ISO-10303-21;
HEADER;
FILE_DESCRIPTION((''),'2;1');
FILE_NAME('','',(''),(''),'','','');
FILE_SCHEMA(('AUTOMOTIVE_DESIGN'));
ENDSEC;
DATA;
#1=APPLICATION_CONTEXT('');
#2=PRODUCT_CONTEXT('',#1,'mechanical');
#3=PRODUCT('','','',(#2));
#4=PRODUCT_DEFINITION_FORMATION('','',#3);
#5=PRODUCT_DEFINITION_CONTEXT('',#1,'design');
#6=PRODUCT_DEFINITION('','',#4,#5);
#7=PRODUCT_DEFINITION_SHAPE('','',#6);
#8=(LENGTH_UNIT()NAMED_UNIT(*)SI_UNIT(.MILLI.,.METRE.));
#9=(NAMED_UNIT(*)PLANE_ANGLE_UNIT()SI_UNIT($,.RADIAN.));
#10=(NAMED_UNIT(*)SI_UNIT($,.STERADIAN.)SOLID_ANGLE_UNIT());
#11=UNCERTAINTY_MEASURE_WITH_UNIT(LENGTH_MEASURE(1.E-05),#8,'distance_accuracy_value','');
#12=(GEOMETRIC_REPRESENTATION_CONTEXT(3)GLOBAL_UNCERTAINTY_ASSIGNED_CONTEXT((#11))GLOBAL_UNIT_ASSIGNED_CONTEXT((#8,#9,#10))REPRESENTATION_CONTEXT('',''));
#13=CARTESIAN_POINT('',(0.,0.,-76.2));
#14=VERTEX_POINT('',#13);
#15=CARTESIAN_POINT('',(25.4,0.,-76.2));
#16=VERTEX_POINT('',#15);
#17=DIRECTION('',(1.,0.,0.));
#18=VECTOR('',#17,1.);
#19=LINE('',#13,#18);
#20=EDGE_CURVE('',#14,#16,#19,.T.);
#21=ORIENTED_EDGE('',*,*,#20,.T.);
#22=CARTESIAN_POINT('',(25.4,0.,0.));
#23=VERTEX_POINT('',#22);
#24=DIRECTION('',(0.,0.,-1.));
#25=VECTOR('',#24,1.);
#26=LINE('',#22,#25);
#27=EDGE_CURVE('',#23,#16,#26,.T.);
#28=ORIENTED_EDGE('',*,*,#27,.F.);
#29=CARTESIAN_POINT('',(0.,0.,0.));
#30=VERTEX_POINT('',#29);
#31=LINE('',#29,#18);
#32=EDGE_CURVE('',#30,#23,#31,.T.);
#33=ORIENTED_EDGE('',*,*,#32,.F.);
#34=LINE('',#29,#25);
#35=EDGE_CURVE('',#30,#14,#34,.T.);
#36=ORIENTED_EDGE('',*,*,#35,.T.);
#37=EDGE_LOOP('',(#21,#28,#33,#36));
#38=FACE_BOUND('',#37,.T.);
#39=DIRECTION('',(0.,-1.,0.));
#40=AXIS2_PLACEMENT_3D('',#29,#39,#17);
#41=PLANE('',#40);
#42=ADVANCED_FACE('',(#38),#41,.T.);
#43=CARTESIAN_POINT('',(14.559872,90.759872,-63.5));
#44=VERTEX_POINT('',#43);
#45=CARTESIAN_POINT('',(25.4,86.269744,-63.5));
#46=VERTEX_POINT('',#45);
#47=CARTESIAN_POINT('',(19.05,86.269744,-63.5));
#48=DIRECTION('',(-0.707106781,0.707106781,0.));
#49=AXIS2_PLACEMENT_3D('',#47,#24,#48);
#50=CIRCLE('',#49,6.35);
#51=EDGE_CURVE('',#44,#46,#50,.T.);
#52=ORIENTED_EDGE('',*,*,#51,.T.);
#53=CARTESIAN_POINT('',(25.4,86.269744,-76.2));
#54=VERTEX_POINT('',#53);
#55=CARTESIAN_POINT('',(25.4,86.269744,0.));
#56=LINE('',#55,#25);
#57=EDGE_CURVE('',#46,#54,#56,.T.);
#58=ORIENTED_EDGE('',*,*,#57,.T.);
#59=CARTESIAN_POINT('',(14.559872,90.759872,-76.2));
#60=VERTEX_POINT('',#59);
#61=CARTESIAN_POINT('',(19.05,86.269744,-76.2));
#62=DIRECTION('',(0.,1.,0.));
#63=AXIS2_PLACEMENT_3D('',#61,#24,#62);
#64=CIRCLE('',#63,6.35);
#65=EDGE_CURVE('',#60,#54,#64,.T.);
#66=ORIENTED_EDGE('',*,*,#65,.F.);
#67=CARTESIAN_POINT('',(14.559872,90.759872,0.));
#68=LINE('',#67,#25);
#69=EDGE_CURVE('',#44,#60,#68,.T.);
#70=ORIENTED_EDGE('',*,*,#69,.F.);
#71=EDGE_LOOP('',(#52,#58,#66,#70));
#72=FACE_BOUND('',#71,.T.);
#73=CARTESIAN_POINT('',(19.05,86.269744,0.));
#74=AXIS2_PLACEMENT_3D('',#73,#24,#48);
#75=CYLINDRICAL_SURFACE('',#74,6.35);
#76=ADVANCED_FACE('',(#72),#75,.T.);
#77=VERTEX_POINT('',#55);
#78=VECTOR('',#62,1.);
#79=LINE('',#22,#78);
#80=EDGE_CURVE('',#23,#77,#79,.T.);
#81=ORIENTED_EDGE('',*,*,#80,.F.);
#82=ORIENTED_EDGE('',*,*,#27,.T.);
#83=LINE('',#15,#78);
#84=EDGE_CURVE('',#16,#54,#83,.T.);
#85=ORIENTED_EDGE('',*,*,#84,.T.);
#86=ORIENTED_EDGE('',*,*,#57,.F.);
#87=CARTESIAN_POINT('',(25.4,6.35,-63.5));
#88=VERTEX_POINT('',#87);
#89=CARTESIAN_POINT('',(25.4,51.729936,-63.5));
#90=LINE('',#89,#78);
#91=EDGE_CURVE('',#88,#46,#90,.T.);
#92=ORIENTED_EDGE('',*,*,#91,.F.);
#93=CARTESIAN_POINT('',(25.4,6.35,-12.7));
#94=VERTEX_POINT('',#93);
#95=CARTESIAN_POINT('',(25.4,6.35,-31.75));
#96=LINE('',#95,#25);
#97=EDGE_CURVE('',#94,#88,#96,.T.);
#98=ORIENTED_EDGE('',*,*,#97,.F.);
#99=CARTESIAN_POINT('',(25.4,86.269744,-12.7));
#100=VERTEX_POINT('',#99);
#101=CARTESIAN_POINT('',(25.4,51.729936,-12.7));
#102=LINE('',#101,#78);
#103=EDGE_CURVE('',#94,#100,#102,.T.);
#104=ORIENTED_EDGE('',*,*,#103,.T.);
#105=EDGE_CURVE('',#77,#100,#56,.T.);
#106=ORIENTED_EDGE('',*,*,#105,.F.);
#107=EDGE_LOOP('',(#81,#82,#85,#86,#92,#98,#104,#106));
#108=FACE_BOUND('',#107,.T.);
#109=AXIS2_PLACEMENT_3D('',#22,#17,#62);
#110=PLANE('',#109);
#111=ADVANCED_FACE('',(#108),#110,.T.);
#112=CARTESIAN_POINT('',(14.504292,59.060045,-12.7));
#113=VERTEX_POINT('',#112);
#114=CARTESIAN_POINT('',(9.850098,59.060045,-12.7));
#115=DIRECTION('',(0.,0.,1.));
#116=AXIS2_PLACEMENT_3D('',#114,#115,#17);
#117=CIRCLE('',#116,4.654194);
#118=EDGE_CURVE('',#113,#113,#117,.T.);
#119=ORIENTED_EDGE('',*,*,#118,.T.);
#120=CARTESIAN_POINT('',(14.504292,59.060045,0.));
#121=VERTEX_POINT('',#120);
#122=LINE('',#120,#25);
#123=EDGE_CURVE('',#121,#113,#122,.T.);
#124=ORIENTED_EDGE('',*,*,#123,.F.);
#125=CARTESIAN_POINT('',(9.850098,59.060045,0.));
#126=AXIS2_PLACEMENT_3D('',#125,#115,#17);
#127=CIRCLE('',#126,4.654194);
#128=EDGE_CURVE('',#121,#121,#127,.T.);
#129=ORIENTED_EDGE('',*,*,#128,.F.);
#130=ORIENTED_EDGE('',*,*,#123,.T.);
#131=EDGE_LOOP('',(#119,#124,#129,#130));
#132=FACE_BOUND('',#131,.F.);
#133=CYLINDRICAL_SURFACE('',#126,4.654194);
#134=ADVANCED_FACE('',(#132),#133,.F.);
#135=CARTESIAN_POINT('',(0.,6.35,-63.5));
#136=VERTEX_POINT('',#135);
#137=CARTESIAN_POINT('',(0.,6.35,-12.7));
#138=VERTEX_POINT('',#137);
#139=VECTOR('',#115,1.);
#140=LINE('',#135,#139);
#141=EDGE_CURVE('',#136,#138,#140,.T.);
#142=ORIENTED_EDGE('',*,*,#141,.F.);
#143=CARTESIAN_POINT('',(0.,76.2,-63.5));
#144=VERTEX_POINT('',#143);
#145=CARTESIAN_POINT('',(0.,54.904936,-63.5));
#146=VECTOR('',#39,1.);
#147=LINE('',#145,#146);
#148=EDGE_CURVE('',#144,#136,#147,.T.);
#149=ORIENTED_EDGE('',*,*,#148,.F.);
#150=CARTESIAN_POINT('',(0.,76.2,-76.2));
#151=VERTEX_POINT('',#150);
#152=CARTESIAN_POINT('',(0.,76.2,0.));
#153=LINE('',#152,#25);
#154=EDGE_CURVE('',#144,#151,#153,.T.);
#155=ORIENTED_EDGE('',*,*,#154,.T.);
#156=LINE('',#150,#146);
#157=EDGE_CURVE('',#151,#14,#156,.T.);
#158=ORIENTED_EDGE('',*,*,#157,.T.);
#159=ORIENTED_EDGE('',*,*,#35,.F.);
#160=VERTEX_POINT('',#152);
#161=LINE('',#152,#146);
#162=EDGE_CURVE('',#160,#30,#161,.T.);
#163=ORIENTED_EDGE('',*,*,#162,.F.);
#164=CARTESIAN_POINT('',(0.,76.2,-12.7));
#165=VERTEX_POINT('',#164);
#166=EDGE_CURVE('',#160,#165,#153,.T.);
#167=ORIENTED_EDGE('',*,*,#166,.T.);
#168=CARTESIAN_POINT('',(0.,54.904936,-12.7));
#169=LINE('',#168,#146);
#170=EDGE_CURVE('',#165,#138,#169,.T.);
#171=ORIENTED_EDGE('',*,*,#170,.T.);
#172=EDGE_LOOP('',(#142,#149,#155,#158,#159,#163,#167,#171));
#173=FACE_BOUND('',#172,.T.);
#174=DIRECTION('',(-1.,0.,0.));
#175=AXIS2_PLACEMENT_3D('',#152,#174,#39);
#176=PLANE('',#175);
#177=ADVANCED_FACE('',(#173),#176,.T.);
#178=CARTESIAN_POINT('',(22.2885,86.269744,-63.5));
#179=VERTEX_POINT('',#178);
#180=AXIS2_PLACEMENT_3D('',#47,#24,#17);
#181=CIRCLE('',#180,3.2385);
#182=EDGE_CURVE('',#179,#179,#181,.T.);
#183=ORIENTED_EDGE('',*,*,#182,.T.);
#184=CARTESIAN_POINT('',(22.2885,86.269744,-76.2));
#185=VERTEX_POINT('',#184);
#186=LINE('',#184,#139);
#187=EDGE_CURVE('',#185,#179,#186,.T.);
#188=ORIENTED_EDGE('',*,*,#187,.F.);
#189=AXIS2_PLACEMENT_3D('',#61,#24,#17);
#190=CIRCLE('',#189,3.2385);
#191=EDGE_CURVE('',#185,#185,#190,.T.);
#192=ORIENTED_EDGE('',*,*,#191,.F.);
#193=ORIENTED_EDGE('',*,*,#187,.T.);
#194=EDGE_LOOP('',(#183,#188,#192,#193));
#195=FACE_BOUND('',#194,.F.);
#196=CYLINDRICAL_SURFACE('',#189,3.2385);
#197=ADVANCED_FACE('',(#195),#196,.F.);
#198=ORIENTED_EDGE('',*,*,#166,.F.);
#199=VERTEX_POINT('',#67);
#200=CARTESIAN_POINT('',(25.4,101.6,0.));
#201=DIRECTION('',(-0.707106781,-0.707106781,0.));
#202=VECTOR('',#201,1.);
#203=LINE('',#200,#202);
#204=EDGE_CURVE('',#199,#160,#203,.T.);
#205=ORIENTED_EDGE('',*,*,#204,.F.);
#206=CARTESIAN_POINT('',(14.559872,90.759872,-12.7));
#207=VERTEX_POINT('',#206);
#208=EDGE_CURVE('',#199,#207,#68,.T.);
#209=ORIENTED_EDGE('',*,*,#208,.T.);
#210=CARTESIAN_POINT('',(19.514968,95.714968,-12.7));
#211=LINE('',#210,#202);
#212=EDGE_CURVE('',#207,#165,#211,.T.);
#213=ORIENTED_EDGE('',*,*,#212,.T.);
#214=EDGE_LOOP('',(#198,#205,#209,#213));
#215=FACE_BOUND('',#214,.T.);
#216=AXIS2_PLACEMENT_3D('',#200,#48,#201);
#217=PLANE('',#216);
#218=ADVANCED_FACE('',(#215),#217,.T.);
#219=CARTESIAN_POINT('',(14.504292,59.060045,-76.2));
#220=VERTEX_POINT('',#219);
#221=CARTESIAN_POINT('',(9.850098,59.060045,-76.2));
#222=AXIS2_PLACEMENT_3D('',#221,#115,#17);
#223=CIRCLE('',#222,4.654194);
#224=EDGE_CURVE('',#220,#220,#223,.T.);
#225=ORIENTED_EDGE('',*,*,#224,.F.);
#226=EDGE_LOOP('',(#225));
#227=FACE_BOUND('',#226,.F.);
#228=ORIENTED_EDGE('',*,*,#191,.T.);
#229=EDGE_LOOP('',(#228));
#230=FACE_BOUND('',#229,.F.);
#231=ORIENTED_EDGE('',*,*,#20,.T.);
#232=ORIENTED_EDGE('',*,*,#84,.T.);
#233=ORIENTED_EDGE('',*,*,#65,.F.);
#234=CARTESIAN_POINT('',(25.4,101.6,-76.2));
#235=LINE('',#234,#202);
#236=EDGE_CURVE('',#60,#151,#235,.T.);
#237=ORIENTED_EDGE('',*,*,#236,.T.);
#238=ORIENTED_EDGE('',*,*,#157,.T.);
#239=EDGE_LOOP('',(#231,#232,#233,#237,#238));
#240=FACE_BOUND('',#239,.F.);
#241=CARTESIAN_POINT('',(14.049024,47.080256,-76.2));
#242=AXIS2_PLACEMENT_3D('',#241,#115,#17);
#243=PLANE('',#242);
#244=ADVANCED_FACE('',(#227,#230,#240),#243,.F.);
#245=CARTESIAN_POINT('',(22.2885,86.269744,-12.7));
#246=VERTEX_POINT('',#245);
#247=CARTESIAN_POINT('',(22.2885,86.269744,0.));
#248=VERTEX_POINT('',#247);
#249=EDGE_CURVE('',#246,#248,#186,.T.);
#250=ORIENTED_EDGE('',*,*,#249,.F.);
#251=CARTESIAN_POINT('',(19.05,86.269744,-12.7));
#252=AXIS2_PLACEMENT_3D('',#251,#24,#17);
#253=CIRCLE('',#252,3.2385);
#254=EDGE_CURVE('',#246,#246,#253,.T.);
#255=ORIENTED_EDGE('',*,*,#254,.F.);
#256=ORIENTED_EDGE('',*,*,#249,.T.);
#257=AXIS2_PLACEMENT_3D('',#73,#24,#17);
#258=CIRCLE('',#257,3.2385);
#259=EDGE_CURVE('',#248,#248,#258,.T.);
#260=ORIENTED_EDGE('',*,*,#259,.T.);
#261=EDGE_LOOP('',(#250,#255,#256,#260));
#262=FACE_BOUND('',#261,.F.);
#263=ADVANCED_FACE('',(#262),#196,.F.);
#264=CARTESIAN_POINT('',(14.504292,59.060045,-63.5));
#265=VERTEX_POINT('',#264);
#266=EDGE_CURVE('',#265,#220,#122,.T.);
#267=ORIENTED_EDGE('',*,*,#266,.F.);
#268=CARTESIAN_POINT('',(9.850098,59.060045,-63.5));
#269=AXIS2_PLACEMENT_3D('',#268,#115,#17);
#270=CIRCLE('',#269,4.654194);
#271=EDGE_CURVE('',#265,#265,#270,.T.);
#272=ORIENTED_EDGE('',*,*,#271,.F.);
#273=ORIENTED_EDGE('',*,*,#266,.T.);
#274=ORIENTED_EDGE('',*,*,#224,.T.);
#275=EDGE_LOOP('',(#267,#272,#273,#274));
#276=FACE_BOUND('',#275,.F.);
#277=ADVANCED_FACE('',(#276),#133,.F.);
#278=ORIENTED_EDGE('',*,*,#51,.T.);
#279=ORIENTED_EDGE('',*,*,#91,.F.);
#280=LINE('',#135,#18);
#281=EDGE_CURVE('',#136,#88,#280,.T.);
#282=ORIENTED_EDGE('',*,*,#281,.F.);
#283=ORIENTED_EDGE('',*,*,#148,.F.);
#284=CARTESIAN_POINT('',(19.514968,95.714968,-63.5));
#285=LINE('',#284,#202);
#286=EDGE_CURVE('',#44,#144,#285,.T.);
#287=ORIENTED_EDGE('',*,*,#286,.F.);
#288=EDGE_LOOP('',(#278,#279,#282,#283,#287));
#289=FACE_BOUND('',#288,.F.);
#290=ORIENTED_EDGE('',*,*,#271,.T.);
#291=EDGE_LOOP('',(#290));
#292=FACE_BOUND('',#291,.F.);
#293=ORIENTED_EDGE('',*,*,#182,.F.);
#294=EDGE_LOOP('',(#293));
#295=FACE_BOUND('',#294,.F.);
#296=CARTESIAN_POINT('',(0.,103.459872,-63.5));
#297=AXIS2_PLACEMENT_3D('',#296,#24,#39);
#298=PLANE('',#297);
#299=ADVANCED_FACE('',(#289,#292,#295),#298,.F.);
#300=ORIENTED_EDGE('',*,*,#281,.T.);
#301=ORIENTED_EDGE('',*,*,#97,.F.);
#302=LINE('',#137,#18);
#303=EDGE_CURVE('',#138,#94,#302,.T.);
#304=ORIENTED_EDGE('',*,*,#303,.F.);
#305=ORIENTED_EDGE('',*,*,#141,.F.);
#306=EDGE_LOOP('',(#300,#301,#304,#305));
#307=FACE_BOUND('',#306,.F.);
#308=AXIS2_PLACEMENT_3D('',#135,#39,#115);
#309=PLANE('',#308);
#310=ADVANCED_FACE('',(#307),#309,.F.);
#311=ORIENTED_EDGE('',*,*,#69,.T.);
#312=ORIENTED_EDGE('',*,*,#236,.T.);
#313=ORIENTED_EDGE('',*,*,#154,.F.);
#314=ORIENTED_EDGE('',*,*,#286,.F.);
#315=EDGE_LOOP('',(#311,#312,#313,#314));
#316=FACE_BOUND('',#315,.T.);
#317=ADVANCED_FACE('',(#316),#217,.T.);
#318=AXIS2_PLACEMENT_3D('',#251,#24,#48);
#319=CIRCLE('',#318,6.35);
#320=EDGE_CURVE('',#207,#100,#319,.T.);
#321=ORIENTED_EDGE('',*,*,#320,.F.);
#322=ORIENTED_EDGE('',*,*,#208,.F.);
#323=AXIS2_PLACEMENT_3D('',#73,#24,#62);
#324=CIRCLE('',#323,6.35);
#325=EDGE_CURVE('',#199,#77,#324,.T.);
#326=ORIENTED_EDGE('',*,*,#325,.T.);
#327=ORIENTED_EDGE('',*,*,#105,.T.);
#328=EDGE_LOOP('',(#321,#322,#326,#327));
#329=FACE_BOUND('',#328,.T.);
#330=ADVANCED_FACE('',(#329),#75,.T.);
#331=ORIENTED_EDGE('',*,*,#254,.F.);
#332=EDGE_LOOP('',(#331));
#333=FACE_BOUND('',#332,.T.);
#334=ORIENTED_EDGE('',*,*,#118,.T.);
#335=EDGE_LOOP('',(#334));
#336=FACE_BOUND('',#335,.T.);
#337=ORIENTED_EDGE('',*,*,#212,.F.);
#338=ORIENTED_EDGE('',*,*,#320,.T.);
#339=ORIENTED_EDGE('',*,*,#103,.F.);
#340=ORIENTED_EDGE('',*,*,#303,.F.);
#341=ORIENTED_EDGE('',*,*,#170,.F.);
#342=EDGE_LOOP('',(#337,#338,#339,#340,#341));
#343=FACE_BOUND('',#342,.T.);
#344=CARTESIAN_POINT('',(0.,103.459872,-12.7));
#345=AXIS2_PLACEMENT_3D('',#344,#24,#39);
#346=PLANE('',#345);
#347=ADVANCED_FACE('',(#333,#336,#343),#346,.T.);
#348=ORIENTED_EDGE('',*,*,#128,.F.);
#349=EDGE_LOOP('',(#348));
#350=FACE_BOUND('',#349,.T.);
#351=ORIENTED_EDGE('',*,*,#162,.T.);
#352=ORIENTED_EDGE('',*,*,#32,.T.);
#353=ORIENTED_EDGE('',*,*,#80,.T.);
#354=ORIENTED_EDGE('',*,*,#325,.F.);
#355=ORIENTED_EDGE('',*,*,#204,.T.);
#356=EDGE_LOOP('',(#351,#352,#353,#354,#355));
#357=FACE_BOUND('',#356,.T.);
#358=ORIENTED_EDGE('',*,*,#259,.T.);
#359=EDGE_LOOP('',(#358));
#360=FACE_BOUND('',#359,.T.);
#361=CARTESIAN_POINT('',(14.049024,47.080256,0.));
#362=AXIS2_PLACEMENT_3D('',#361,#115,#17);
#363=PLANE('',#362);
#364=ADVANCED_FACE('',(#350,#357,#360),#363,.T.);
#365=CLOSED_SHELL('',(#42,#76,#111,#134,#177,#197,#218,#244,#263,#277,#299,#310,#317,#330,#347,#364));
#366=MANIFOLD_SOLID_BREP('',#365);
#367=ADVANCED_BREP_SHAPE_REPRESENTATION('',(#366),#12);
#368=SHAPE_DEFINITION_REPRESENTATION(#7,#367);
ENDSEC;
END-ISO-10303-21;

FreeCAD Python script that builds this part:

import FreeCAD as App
import Part
import Sketcher
from FreeCAD import Vector
Q = App.Units.Quantity


def edges_at(feature, points):
    """Names of the edges that pass closest to the given points."""
    edges = feature.Shape.Edges
    near = lambda p: min(range(len(edges)), key=lambda i: edges[i].distToShape(Part.Vertex(*p))[0])
    return sorted({f"Edge{near(p) + 1}" for p in points})


def add_polygon(sketch, points):
    """Adds a closed chain of lines whose ends are joined by coincident constraints."""
    first, n = sketch.GeometryCount, len(points)
    for a, b in zip(points, points[1:] + points[:1]):
        sketch.addGeometry(Part.LineSegment(App.Vector(*a, 0), App.Vector(*b, 0)), False)
    for i in range(n):
        sketch.addConstraint(Sketcher.Constraint("Coincident", first + i, 2, first + (i + 1) % n, 1))

doc = App.newDocument("Part")
body = doc.addObject("PartDesign::Body", "Body")

# Sketch on XY plane
sketch1 = body.newObject("Sketcher::SketchObject", "Sketch")
sketch1.AttachmentSupport = (doc.getObject("XY_Plane"), [""])
sketch1.MapMode = "FlatFace"
add_polygon(sketch1, [(0, 76.2), (0, 0), (25.4, 0), (25.4, 101.6)])  # lines 0-3
sketch1.addGeometry(Part.Circle(Vector(9.9, 59.1, 0), Vector(0, 0, 1), 4.7), False)  # 4
sketch1.addConstraint([
    Sketcher.Constraint("Vertical", 0),
    Sketcher.Constraint("Horizontal", 1),
    Sketcher.Constraint("Vertical", 2),
    Sketcher.Constraint("Coincident", 0, 2, -1, 1),
    Sketcher.Constraint("DistanceX", 1, 1, 1, 2, Q("1 in")),
    Sketcher.Constraint("DistanceY", 0, 2, 0, 1, Q("3 in")),
    Sketcher.Constraint("DistanceY", 2, 1, 2, 2, Q("4 in")),
    Sketcher.Constraint("Diameter", 4, 9.308388),
    Sketcher.Constraint("DistanceX", -1, 1, 4, 3, 9.850098),
    Sketcher.Constraint("DistanceY", -1, 1, 4, 3, 59.060045),
])
pad1 = body.newObject("PartDesign::Pad", "Pad")
pad1.Profile = sketch1
pad1.Length = Q("3 in")
pad1.Reversed = True
doc.recompute()

fillet = body.newObject("PartDesign::Fillet", "Fillet")
fillet.Base = (pad1, edges_at(pad1, [(25.4, 101.6, -38.1)]))
fillet.Radius = Q("0.25 in")

# Sketch on YZ plane
sketch2 = body.newObject("Sketcher::SketchObject", "Sketch001")
sketch2.AttachmentSupport = (doc.getObject("YZ_Plane"), [""])
sketch2.MapMode = "FlatFace"
add_polygon(sketch2, [(103, -64), (6, -64), (6, -13), (103, -13)])  # lines 0-3
sketch2.addConstraint([
    Sketcher.Constraint("Horizontal", 0),
    Sketcher.Constraint("Vertical", 1),
    Sketcher.Constraint("Horizontal", 2),
    Sketcher.Constraint("Vertical", 3),
    Sketcher.Constraint("DistanceY", 1, 1, 1, 2, Q("2 in")),
    Sketcher.Constraint("DistanceY", 0, 2, -1, 1, Q("2.5 in")),
    Sketcher.Constraint("DistanceX", -1, 1, 0, 2, Q("0.25 in")),
    Sketcher.Constraint("DistanceX", 0, 2, 0, 1, 97.109872),
])
pocket1 = body.newObject("PartDesign::Pocket", "Pocket")
pocket1.Profile = sketch2
pocket1.Type = "ThroughAll"
pocket1.Reversed = True

# Sketch on XY plane
sketch3 = body.newObject("Sketcher::SketchObject", "Sketch002")
sketch3.AttachmentSupport = (doc.getObject("XY_Plane"), [""])
sketch3.MapMode = "FlatFace"
sketch3.AttachmentOffset = App.Placement(Vector(0, 0, -3 * 25.4), App.Rotation())
sketch3.addGeometry(Part.Circle(Vector(19.1, 86.3, 0), Vector(0, 0, 1), 3.2), False)
sketch3.addConstraint([
    Sketcher.Constraint("Diameter", 0, Q("0.255 in")),
    Sketcher.Constraint("DistanceX", -1, 1, 0, 3, Q("0.75 in")),
    Sketcher.Constraint("DistanceY", -1, 1, 0, 3, 86.269744),
])
pocket2 = body.newObject("PartDesign::Pocket", "Pocket001")
pocket2.Profile = sketch3
pocket2.Type = "ThroughAll"
pocket2.Reversed = True

doc.recompute()
